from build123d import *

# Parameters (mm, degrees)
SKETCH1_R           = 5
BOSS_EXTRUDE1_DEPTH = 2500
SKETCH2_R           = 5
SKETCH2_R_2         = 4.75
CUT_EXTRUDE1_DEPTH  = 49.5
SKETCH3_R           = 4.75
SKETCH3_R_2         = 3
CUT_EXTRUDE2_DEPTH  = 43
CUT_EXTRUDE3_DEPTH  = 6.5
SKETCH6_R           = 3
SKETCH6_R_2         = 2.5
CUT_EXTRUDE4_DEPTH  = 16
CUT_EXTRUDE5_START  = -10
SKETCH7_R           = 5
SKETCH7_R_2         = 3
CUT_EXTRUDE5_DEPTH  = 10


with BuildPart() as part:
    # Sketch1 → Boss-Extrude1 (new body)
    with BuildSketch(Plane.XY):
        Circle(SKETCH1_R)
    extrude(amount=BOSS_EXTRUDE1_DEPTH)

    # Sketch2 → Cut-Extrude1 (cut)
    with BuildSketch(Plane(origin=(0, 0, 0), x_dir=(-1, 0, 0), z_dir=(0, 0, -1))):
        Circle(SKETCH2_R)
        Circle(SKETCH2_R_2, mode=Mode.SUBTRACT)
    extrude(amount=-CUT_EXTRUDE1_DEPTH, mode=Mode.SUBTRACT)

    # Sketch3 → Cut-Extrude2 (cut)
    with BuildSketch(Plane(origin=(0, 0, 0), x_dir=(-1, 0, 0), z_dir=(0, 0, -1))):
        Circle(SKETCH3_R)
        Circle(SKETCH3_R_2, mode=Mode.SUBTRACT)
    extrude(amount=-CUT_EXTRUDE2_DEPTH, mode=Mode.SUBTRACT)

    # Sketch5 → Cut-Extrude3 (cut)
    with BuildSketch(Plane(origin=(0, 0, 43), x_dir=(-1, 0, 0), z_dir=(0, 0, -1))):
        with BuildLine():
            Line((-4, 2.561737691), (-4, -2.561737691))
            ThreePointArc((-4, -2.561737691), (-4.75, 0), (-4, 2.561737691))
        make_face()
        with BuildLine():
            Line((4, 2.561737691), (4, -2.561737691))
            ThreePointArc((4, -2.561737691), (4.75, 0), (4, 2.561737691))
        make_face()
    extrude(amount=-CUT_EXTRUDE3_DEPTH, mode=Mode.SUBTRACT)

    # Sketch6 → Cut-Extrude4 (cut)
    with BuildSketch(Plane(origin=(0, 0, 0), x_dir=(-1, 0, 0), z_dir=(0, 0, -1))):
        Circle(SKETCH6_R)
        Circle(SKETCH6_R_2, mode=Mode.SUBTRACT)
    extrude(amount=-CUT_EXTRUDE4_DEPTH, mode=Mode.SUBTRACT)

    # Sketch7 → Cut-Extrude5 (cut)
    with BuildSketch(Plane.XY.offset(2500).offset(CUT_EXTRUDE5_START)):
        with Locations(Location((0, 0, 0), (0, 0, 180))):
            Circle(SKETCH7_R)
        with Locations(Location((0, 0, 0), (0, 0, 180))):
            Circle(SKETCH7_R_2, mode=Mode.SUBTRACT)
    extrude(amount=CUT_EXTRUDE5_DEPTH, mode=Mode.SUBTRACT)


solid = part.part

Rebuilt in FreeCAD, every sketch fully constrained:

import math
import FreeCAD as App
import Part
import Sketcher
from FreeCAD import Vector
Q = App.Units.Quantity

doc = App.newDocument("Part")
body = doc.addObject("PartDesign::Body", "Body")

# Sketch on XY plane
sketch1 = body.newObject("Sketcher::SketchObject", "Sketch")
sketch1.AttachmentSupport = (doc.getObject("XY_Plane"), [""])
sketch1.MapMode = "FlatFace"
sketch1.addGeometry(Part.Circle(Vector(0, 0, 0), Vector(0, 0, 1), 5), False)
sketch1.addConstraint([
    Sketcher.Constraint("Coincident", 0, 3, -1, 1),
    Sketcher.Constraint("Diameter", 0, Q("10 mm")),
])
pad1 = body.newObject("PartDesign::Pad", "Pad")
pad1.Profile = sketch1
pad1.Length = 2500

# Sketch on XY plane
sketch2 = body.newObject("Sketcher::SketchObject", "Sketch001")
sketch2.AttachmentSupport = (doc.getObject("XY_Plane"), [""])
sketch2.MapMode = "FlatFace"
sketch2.addGeometry([
    Part.Circle(Vector(0, 0, 0), Vector(0, 0, 1), 5),
    Part.Circle(Vector(0, 0, 0), Vector(0, 0, 1), 4.75),
], False)
sketch2.addConstraint([
    Sketcher.Constraint("Coincident", 0, 3, -1, 1),
    Sketcher.Constraint("Coincident", 1, 3, -1, 1),
    Sketcher.Constraint("Diameter", 0, Q("10 mm")),
    Sketcher.Constraint("Diameter", 1, Q("9.5 mm")),
])
pocket1 = body.newObject("PartDesign::Pocket", "Pocket")
pocket1.Profile = sketch2
pocket1.Length = 49.5
pocket1.Reversed = True

# Sketch on XY plane
sketch3 = body.newObject("Sketcher::SketchObject", "Sketch002")
sketch3.AttachmentSupport = (doc.getObject("XY_Plane"), [""])
sketch3.MapMode = "FlatFace"
sketch3.addGeometry([
    Part.Circle(Vector(0, 0, 0), Vector(0, 0, 1), 4.75),
    Part.Circle(Vector(0, 0, 0), Vector(0, 0, 1), 3),
], False)
sketch3.addConstraint([
    Sketcher.Constraint("Coincident", 0, 3, -1, 1),
    Sketcher.Constraint("Coincident", 1, 3, -1, 1),
    Sketcher.Constraint("Diameter", 1, Q("6 mm")),
    Sketcher.Constraint("Diameter", 0, Q("9.5 mm")),
])
pocket2 = body.newObject("PartDesign::Pocket", "Pocket001")
pocket2.Profile = sketch3
pocket2.Length = 43
pocket2.Reversed = True

# Sketch on XY plane
sketch4 = body.newObject("Sketcher::SketchObject", "Sketch003")
sketch4.AttachmentSupport = (doc.getObject("XY_Plane"), [""])
sketch4.MapMode = "FlatFace"
sketch4.AttachmentOffset = App.Placement(Vector(0, 0, 43), App.Rotation())
sketch4.addGeometry([
    Part.LineSegment(Vector(4, -2.561738, 0), Vector(4, 2.561738, 0)),
    Part.ArcOfCircle(Part.Circle(Vector(0, 0, 0), Vector(0, 0, 1), 4.75), math.radians(-32.636898), math.radians(32.636898)),
    Part.LineSegment(Vector(-4, 2.561738, 0), Vector(-4, -2.561738, 0)),
    Part.ArcOfCircle(Part.Circle(Vector(0, 0, 0), Vector(0, 0, 1), 4.75), math.radians(147.363102), math.radians(212.636898)),
], False)
sketch4.addConstraint([
    Sketcher.Constraint("Coincident", 0, 1, 1, 1),
    Sketcher.Constraint("Coincident", 1, 2, 0, 2),
    Sketcher.Constraint("Coincident", 2, 1, 3, 1),
    Sketcher.Constraint("Coincident", 3, 2, 2, 2),
    Sketcher.Constraint("Vertical", 0),
    Sketcher.Constraint("Vertical", 2),
    Sketcher.Constraint("Coincident", 1, 3, -1, 1),
    Sketcher.Constraint("Coincident", 3, 3, -1, 1),
    Sketcher.Constraint("Equal", 1, 3),
    Sketcher.Constraint("Horizontal", 1, 2, 2, 1),
    Sketcher.Constraint("Radius", 1, Q("4.75 mm")),
    Sketcher.Constraint("DistanceX", -1, 1, 0, 1, Q("4 mm")),
])
pocket3 = body.newObject("PartDesign::Pocket", "Pocket002")
pocket3.Profile = sketch4
pocket3.Length = 6.5
pocket3.Reversed = True

# Sketch on XY plane
sketch5 = body.newObject("Sketcher::SketchObject", "Sketch004")
sketch5.AttachmentSupport = (doc.getObject("XY_Plane"), [""])
sketch5.MapMode = "FlatFace"
sketch5.addGeometry([
    Part.Circle(Vector(0, 0, 0), Vector(0, 0, 1), 3),
    Part.Circle(Vector(0, 0, 0), Vector(0, 0, 1), 2.5),
], False)
sketch5.addConstraint([
    Sketcher.Constraint("Coincident", 0, 3, -1, 1),
    Sketcher.Constraint("Coincident", 1, 3, -1, 1),
    Sketcher.Constraint("Diameter", 0, Q("6 mm")),
    Sketcher.Constraint("Diameter", 1, Q("5 mm")),
])
pocket4 = body.newObject("PartDesign::Pocket", "Pocket003")
pocket4.Profile = sketch5
pocket4.Length = 16
pocket4.Reversed = True

# Sketch on XY plane
sketch6 = body.newObject("Sketcher::SketchObject", "Sketch005")
sketch6.AttachmentSupport = (doc.getObject("XY_Plane"), [""])
sketch6.MapMode = "FlatFace"
sketch6.AttachmentOffset = App.Placement(Vector(0, 0, 2490), App.Rotation())
sketch6.addGeometry([
    Part.Circle(Vector(0, 0, 0), Vector(0, 0, 1), 5),
    Part.Circle(Vector(0, 0, 0), Vector(0, 0, 1), 3),
], False)
sketch6.addConstraint([
    Sketcher.Constraint("Coincident", 0, 3, -1, 1),
    Sketcher.Constraint("Coincident", 1, 3, -1, 1),
    Sketcher.Constraint("Diameter", 0, Q("10 mm")),
    Sketcher.Constraint("Diameter", 1, Q("6 mm")),
])
pocket5 = body.newObject("PartDesign::Pocket", "Pocket004")
pocket5.Profile = sketch6
pocket5.Length = 10
pocket5.Reversed = True

doc.recompute()
